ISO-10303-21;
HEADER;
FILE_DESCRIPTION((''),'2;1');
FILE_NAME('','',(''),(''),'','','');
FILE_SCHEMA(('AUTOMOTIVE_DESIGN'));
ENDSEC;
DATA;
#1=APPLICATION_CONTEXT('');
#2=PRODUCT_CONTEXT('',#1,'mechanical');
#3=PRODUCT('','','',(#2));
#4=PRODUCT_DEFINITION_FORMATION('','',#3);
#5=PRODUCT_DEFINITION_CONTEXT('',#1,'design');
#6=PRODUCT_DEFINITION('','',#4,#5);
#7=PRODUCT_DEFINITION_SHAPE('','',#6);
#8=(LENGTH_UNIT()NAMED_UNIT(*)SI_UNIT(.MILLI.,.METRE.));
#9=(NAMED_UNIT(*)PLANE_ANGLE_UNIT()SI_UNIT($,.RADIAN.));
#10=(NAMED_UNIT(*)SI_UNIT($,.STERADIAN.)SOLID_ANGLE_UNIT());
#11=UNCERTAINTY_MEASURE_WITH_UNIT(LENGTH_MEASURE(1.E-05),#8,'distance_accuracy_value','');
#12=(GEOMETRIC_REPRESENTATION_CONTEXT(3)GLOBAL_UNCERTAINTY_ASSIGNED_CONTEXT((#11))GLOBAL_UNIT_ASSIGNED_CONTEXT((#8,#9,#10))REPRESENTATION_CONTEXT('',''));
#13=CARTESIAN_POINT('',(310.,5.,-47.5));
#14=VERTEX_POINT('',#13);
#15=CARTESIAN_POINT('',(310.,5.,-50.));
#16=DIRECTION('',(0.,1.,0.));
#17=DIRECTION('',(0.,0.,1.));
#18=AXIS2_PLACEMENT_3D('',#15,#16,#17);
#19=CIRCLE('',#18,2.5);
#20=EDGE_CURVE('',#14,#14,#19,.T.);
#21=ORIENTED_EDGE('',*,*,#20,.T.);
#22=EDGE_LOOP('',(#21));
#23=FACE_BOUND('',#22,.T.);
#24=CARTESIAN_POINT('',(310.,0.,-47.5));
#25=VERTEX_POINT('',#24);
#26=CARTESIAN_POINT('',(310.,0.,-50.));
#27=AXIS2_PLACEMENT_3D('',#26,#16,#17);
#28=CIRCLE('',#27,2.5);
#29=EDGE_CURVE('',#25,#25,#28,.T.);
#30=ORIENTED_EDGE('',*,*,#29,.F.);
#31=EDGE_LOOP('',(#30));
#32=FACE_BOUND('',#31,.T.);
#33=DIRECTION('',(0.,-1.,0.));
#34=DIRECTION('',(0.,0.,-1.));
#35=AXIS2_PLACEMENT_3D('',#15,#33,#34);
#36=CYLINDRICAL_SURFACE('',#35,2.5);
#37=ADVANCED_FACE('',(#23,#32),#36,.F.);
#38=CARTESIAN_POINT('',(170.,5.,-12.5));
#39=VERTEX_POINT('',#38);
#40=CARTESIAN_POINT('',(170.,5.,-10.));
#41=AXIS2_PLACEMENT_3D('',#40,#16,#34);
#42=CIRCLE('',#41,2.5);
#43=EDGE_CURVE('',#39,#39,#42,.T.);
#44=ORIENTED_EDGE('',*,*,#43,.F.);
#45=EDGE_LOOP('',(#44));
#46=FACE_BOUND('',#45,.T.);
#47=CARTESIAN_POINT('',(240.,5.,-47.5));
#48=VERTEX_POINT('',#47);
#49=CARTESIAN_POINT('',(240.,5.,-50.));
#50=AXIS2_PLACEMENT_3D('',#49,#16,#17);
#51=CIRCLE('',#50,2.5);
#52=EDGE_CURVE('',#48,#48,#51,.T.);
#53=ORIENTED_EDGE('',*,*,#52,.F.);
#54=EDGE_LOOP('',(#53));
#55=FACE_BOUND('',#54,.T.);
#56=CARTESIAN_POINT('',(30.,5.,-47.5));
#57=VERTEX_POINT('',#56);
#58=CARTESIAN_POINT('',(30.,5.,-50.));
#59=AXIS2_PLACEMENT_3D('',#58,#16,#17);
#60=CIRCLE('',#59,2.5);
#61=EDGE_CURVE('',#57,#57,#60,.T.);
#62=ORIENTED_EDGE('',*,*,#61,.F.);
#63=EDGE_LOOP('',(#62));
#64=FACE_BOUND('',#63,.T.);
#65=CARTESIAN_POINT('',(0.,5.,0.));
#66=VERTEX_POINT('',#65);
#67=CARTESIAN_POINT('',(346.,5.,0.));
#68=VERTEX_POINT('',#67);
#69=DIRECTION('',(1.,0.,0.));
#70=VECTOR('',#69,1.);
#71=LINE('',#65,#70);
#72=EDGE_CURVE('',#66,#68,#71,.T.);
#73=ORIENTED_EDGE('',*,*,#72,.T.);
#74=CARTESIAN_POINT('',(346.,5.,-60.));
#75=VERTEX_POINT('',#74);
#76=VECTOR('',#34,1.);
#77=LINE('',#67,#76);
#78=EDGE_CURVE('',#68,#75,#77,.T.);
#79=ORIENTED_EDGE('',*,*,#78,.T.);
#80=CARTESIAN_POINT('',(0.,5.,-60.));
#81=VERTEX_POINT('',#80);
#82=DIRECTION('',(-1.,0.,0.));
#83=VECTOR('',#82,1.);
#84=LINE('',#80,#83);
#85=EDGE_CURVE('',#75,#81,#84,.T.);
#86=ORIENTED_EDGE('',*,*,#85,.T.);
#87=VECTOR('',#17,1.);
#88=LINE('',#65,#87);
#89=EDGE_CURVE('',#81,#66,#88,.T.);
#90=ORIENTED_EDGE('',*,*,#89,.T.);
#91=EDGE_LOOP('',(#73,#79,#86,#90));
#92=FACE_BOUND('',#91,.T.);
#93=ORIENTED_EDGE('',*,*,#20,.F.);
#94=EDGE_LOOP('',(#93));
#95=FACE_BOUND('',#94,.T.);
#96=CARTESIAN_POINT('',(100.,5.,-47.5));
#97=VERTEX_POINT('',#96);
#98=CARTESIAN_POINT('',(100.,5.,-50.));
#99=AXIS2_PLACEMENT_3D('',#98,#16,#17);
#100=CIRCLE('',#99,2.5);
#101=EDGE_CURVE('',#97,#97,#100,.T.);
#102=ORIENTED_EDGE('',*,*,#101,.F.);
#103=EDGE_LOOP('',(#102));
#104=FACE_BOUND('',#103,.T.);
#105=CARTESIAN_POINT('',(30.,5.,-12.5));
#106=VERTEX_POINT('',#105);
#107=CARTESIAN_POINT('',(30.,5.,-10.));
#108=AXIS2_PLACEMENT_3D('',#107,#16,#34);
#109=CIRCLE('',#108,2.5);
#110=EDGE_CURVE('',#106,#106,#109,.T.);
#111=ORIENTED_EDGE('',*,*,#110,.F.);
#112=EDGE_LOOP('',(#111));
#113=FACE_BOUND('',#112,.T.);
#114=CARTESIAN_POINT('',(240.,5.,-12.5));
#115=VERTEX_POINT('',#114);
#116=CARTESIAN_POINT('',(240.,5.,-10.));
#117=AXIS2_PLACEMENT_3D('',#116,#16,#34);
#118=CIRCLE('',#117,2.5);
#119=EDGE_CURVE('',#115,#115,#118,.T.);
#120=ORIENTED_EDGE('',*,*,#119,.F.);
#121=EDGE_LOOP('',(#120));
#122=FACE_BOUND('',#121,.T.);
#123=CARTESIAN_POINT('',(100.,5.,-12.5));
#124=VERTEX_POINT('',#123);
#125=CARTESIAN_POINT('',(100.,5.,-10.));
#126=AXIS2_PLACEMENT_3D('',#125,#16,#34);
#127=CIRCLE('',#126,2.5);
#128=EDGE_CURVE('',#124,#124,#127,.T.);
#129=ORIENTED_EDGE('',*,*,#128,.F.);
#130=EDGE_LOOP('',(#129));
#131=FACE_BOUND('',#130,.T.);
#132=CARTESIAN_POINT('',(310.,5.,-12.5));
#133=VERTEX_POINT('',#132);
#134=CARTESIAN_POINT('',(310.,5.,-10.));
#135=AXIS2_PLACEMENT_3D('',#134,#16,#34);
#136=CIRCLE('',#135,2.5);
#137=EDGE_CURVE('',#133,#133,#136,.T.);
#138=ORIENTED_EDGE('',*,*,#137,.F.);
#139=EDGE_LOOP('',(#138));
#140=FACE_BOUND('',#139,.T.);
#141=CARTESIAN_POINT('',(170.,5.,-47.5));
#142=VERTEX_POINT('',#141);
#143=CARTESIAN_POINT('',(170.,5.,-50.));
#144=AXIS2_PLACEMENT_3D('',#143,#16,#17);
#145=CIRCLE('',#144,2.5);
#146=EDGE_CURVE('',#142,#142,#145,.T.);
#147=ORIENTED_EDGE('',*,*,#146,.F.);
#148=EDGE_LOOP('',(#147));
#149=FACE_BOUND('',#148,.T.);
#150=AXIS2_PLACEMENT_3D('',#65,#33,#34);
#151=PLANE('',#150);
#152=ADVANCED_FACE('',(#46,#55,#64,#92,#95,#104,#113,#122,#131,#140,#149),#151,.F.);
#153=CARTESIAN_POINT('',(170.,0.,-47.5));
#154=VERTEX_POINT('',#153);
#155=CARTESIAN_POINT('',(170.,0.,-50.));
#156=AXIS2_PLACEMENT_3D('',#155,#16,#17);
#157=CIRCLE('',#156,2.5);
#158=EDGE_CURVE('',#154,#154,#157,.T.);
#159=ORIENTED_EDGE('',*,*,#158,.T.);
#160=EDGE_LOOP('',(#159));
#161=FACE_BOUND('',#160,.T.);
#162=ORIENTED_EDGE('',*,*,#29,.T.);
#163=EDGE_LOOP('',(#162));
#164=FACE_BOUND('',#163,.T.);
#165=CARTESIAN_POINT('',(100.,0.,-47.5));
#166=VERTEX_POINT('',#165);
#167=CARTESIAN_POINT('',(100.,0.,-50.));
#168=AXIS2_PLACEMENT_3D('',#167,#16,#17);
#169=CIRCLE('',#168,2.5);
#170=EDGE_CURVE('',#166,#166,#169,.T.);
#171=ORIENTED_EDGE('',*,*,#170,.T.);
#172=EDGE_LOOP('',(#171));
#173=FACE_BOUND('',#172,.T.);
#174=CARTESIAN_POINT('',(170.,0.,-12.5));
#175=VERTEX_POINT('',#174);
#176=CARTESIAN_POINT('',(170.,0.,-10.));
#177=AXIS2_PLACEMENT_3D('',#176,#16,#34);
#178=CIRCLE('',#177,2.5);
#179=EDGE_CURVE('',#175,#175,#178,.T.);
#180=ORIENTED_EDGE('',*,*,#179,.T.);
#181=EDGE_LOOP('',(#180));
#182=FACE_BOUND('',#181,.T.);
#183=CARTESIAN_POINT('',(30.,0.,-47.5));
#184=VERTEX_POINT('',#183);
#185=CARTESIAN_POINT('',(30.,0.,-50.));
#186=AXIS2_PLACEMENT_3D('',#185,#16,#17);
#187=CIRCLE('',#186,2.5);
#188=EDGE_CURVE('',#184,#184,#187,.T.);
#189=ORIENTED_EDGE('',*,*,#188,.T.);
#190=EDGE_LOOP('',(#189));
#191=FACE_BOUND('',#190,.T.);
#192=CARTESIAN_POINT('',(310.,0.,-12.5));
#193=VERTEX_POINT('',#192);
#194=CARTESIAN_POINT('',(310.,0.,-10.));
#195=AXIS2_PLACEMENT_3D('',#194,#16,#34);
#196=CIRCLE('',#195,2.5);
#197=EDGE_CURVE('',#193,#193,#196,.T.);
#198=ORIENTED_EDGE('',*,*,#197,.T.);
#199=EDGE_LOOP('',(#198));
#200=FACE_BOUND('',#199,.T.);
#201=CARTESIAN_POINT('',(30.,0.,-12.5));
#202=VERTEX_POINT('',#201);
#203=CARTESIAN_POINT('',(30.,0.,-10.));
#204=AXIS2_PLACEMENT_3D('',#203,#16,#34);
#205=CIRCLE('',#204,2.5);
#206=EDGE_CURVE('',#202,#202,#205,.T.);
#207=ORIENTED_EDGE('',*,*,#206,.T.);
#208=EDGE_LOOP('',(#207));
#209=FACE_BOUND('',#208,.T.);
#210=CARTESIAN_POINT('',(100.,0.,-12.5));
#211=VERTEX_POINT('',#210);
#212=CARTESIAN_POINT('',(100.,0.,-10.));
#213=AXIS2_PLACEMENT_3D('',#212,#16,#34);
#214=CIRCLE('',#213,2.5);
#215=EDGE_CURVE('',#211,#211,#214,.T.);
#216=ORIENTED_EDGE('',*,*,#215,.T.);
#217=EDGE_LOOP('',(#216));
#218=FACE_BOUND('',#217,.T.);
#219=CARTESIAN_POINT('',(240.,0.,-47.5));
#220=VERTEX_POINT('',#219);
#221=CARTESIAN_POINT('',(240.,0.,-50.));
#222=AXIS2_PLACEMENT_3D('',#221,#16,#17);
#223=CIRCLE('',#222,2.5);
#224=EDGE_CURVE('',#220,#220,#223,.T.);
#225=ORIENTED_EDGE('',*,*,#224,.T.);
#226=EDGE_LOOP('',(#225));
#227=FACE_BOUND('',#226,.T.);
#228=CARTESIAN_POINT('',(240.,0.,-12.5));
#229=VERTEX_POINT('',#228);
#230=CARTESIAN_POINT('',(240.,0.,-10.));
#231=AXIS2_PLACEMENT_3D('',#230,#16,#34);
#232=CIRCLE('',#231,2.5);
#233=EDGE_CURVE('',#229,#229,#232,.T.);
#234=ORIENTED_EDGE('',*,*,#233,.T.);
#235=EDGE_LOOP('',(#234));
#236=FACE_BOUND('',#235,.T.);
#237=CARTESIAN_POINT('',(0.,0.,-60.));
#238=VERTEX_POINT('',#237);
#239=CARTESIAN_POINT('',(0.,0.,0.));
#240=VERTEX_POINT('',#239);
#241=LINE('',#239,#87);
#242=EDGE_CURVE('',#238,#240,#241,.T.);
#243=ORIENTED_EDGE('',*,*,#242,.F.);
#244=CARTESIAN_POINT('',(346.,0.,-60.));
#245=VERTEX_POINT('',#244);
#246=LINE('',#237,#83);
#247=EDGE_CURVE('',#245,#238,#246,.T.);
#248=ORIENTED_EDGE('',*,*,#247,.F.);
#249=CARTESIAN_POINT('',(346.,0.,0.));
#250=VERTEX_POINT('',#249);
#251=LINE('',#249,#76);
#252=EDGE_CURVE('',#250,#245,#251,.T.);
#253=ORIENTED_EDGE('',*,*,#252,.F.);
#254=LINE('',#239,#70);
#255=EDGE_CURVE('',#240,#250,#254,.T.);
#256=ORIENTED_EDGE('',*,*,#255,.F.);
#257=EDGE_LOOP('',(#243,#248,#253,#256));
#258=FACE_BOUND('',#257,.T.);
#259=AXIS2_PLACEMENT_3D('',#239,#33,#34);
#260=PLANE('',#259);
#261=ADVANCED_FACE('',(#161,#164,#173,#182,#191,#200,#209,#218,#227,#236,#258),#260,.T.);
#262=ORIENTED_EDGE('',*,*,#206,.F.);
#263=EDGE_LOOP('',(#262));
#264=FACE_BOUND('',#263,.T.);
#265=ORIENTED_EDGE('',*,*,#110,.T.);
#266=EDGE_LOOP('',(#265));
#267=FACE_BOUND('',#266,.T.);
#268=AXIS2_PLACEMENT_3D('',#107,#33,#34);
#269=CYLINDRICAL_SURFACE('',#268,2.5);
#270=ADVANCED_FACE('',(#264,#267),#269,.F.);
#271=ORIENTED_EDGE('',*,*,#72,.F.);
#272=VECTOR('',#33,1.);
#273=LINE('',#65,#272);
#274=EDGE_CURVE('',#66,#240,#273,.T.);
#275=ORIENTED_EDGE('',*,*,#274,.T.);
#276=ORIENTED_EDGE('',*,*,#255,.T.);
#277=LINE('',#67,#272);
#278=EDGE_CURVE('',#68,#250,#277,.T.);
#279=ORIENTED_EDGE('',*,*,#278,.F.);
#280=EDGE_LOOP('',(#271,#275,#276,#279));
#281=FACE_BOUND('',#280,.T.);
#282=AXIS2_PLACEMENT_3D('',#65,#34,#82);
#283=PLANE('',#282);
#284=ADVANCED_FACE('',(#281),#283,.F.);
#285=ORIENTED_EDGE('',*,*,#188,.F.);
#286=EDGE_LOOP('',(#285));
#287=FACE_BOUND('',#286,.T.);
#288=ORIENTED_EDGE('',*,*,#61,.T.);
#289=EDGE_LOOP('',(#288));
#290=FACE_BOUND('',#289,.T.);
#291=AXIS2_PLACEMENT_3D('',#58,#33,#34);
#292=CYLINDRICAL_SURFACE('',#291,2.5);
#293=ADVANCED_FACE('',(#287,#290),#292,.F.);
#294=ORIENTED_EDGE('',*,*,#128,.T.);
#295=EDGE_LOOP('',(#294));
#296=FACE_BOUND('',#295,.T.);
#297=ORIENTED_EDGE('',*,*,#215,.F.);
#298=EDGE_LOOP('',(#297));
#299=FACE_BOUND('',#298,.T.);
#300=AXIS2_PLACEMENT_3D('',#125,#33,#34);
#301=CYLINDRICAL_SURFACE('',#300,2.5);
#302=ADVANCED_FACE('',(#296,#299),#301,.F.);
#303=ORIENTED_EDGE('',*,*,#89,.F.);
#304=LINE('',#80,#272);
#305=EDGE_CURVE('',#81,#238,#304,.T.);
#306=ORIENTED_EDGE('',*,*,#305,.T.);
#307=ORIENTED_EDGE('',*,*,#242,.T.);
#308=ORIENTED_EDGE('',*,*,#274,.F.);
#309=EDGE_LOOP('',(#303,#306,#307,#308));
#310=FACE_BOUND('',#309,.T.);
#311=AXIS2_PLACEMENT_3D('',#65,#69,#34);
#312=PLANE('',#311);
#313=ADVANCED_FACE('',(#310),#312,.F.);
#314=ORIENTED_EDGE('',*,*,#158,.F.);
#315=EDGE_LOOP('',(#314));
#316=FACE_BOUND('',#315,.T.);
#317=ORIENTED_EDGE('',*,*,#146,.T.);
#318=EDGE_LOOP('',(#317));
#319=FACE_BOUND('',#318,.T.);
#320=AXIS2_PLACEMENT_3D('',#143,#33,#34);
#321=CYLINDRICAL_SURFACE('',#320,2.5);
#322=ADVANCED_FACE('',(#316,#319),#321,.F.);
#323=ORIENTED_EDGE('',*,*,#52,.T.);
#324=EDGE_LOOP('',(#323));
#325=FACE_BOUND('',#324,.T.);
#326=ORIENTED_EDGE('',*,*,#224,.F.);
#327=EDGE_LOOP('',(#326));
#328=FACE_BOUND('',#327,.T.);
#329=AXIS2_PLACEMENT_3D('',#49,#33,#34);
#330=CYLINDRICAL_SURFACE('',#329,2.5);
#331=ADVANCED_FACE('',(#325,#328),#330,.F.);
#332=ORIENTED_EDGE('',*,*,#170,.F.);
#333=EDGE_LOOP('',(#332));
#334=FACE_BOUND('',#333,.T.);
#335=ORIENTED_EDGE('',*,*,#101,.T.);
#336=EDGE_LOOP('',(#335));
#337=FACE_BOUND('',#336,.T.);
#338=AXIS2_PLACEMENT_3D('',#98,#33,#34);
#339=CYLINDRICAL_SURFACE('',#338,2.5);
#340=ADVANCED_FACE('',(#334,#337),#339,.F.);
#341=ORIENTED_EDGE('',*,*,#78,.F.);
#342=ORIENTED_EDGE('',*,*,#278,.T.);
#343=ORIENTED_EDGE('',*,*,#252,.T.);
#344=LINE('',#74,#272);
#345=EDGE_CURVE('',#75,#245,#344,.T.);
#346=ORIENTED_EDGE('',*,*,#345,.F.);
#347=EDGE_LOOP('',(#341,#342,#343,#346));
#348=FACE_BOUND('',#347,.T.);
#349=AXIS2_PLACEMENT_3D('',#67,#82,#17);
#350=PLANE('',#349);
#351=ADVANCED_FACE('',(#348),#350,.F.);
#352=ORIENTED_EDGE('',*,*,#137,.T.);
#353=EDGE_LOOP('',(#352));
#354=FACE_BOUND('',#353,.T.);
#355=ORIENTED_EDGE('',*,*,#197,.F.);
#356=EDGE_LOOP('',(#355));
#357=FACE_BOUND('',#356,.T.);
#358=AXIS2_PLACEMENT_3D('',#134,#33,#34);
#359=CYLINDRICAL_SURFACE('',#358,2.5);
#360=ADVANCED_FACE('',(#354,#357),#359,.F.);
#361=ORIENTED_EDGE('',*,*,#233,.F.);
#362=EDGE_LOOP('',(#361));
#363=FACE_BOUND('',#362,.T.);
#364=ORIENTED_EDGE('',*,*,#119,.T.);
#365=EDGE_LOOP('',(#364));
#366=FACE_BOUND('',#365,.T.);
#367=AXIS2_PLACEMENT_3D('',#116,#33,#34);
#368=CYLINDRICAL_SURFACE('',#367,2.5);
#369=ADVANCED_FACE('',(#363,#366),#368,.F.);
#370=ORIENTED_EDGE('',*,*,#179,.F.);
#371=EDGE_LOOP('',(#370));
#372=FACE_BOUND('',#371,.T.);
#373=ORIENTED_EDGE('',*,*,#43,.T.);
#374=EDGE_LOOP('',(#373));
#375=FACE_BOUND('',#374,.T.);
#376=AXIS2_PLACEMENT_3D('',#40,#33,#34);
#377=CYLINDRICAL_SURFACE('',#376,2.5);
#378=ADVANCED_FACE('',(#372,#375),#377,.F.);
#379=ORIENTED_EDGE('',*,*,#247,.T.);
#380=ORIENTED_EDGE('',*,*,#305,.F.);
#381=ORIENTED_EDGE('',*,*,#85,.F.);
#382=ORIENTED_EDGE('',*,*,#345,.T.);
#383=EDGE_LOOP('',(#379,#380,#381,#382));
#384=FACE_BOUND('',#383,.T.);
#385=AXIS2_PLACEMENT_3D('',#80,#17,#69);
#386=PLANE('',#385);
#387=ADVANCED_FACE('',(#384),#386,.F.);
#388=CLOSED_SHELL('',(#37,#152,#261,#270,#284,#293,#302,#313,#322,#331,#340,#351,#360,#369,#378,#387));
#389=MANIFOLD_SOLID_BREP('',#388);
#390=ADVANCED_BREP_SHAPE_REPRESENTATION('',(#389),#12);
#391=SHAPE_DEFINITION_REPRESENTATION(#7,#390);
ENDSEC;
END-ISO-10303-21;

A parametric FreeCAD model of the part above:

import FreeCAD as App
import Part
import Sketcher
Q = App.Units.Quantity


def add_polygon(sketch, points):
    """Adds a closed chain of lines whose ends are joined by coincident constraints."""
    first, n = sketch.GeometryCount, len(points)
    for a, b in zip(points, points[1:] + points[:1]):
        sketch.addGeometry(Part.LineSegment(App.Vector(*a, 0), App.Vector(*b, 0)), False)
    for i in range(n):
        sketch.addConstraint(Sketcher.Constraint("Coincident", first + i, 2, first + (i + 1) % n, 1))

doc = App.newDocument("Part")
body = doc.addObject("PartDesign::Body", "Body")

# Sketch on XZ plane
sketch1 = doc.addObject("Sketcher::SketchObject", "Sketch")
body.addObject(sketch1)
sketch1.AttachmentSupport = (doc.XZ_Plane, [""])
sketch1.MapMode = "FlatFace"
add_polygon(sketch1, [(0, -60), (0, 0), (346, 0), (346, -60)])  # lines 0-3
sketch1.addGeometry(Part.Circle(App.Vector(30, -10, 0), App.Vector(0, 0, 1), 2.5), False)  # 4
sketch1.addGeometry(Part.Circle(App.Vector(100, -10, 0), App.Vector(0, 0, 1), 2.5), False)  # 5
sketch1.addGeometry(Part.Circle(App.Vector(170, -10, 0), App.Vector(0, 0, 1), 2.5), False)  # 6
sketch1.addGeometry(Part.Circle(App.Vector(240, -10, 0), App.Vector(0, 0, 1), 2.5), False)  # 7
sketch1.addGeometry(Part.Circle(App.Vector(310, -10, 0), App.Vector(0, 0, 1), 2.5), False)  # 8
sketch1.addGeometry(Part.Circle(App.Vector(30, -50, 0), App.Vector(0, 0, 1), 2.5), False)  # 9
sketch1.addGeometry(Part.Circle(App.Vector(100, -50, 0), App.Vector(0, 0, 1), 2.5), False)  # 10
sketch1.addGeometry(Part.Circle(App.Vector(170, -50, 0), App.Vector(0, 0, 1), 2.5), False)  # 11
sketch1.addGeometry(Part.Circle(App.Vector(240, -50, 0), App.Vector(0, 0, 1), 2.5), False)  # 12
sketch1.addGeometry(Part.Circle(App.Vector(310, -50, 0), App.Vector(0, 0, 1), 2.5), False)  # 13
sketch1.addConstraint([
    Sketcher.Constraint("Vertical", 0),
    Sketcher.Constraint("Horizontal", 1),
    Sketcher.Constraint("Vertical", 2),
    Sketcher.Constraint("Horizontal", 3),
    Sketcher.Constraint("Coincident", 0, 2, -1, 1),
    Sketcher.Constraint("Equal", 4, 5),
    Sketcher.Constraint("Equal", 5, 6),
    Sketcher.Constraint("Equal", 6, 7),
    Sketcher.Constraint("Equal", 7, 8),
    Sketcher.Constraint("Equal", 8, 9),
    Sketcher.Constraint("Equal", 9, 10),
    Sketcher.Constraint("Equal", 10, 11),
    Sketcher.Constraint("Equal", 11, 12),
    Sketcher.Constraint("Equal", 12, 13),
    Sketcher.Constraint("Horizontal", 4, 3, 5, 3),
    Sketcher.Constraint("Horizontal", 5, 3, 6, 3),
    Sketcher.Constraint("Horizontal", 6, 3, 7, 3),
    Sketcher.Constraint("Horizontal", 7, 3, 8, 3),
    Sketcher.Constraint("Horizontal", 9, 3, 10, 3),
    Sketcher.Constraint("Horizontal", 10, 3, 11, 3),
    Sketcher.Constraint("Horizontal", 11, 3, 12, 3),
    Sketcher.Constraint("Horizontal", 12, 3, 13, 3),
    Sketcher.Constraint("Vertical", 4, 3, 9, 3),
    Sketcher.Constraint("Vertical", 5, 3, 10, 3),
    Sketcher.Constraint("Vertical", 6, 3, 11, 3),
    Sketcher.Constraint("Vertical", 7, 3, 12, 3),
    Sketcher.Constraint("Vertical", 8, 3, 13, 3),
    Sketcher.Constraint("Diameter", 4, Q("5 mm")),
    Sketcher.Constraint("DistanceX", 1, 1, 1, 2, Q("346 mm")),
    Sketcher.Constraint("DistanceY", 0, 1, 0, 2, Q("60 mm")),
    Sketcher.Constraint("DistanceX", -1, 1, 4, 3, Q("30 mm")),
    Sketcher.Constraint("DistanceY", 4, 3, -1, 1, Q("10 mm")),
    Sketcher.Constraint("DistanceX", -1, 1, 5, 3, Q("100 mm")),
    Sketcher.Constraint("DistanceX", -1, 1, 6, 3, Q("170 mm")),
    Sketcher.Constraint("DistanceX", -1, 1, 7, 3, Q("240 mm")),
    Sketcher.Constraint("DistanceX", -1, 1, 8, 3, Q("310 mm")),
    Sketcher.Constraint("DistanceY", 9, 3, -1, 1, Q("50 mm")),
])
pad1 = doc.addObject("PartDesign::Pad", "Pad")
body.addObject(pad1)
pad1.Profile = sketch1
pad1.Length = 5
pad1.Reversed = True

doc.recompute()
